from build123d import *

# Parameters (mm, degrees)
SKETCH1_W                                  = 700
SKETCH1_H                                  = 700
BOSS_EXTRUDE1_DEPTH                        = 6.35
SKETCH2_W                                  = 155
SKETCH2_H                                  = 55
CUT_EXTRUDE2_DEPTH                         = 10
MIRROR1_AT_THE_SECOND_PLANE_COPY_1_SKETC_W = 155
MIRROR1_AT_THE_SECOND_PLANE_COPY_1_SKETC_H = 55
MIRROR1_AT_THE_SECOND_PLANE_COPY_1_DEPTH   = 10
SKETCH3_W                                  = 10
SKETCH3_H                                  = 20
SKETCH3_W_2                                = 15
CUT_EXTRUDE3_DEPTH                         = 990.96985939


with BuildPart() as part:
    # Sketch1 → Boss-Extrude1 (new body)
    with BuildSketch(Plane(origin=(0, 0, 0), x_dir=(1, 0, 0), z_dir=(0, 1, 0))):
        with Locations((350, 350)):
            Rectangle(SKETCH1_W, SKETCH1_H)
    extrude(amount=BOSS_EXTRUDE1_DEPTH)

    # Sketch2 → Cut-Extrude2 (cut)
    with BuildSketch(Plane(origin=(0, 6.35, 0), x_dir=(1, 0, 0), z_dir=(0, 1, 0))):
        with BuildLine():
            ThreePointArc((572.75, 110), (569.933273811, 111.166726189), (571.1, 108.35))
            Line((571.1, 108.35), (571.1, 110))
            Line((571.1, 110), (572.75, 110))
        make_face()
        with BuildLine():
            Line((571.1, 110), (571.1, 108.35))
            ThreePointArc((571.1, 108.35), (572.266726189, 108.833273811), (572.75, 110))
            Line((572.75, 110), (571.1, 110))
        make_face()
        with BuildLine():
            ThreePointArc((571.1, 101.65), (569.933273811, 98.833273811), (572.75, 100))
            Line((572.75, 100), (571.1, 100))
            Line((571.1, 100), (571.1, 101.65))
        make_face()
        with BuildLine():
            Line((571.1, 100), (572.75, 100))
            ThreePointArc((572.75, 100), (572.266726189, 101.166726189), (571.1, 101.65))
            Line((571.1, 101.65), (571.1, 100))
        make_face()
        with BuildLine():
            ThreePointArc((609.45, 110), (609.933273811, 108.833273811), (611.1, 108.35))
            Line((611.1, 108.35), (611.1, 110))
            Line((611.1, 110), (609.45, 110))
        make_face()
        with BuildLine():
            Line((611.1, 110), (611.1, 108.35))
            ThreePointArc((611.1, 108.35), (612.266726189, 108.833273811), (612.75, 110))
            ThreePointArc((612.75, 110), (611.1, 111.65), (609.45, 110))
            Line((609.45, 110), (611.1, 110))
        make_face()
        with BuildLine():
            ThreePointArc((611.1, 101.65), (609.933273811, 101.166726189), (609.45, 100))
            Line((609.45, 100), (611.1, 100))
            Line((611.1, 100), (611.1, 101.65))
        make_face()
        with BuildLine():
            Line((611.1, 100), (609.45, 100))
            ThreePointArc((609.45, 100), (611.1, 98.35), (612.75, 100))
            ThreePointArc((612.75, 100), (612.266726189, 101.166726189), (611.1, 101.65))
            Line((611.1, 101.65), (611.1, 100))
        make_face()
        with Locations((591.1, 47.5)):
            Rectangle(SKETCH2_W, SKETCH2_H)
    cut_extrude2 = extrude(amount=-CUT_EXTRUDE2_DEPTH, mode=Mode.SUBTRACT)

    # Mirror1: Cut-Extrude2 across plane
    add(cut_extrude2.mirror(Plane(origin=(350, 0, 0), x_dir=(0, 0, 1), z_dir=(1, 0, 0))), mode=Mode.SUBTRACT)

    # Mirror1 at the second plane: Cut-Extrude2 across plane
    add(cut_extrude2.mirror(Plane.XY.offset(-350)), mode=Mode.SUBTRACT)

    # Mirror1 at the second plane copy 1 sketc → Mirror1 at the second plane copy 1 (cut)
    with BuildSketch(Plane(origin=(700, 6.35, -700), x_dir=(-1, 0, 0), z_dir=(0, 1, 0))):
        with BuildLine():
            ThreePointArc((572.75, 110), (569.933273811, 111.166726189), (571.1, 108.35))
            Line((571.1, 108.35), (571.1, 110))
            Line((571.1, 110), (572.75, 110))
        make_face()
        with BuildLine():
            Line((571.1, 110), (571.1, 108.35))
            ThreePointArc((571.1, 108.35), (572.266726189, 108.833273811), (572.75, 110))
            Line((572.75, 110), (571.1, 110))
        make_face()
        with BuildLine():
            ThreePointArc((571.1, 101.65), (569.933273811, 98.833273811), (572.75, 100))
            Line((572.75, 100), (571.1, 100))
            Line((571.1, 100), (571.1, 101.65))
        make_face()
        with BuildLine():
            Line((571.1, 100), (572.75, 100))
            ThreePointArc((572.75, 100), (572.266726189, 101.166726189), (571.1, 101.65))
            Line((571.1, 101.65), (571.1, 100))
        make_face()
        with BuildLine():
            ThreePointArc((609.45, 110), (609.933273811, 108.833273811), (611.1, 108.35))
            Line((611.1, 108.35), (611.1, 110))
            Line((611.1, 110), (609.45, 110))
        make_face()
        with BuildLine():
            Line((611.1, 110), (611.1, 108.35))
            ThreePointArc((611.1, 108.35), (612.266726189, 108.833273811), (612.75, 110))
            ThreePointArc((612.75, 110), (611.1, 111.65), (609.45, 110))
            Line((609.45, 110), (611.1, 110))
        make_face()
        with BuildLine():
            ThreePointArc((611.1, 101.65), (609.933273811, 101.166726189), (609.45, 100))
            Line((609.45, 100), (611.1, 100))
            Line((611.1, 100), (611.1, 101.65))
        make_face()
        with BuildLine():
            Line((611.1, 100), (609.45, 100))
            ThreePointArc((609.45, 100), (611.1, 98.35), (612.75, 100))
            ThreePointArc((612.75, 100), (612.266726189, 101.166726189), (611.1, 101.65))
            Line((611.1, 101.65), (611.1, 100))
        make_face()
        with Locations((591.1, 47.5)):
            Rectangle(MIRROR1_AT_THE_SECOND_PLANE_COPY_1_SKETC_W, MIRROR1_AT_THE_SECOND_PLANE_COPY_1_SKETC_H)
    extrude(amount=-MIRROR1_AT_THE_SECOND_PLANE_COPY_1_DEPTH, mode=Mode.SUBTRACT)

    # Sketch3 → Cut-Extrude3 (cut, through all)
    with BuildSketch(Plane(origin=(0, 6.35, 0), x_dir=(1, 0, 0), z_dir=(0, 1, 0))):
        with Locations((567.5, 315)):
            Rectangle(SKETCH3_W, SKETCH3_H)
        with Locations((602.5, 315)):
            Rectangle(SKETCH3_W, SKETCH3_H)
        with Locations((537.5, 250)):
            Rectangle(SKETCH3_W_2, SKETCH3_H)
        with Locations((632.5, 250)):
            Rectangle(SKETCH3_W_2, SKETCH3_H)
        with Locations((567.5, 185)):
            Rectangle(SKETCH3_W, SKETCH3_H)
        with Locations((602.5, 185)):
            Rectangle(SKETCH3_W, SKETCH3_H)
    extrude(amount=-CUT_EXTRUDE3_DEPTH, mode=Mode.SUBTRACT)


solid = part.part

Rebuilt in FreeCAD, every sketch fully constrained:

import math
import FreeCAD as App
import Part
import Sketcher
from FreeCAD import Vector


def add_polygon(sketch, points):
    """Adds a closed chain of lines whose ends are joined by coincident constraints."""
    first, n = sketch.GeometryCount, len(points)
    for a, b in zip(points, points[1:] + points[:1]):
        sketch.addGeometry(Part.LineSegment(App.Vector(*a, 0), App.Vector(*b, 0)), False)
    for i in range(n):
        sketch.addConstraint(Sketcher.Constraint("Coincident", first + i, 2, first + (i + 1) % n, 1))

doc = App.newDocument("Part")
body = doc.addObject("PartDesign::Body", "Body")

# Sketch on XZ plane
sketch1 = doc.addObject("Sketcher::SketchObject", "Sketch")
body.addObject(sketch1)
sketch1.AttachmentSupport = (doc.XZ_Plane, [""])
sketch1.MapMode = "FlatFace"
add_polygon(sketch1, [(0, -700), (0, 0), (700, 0), (700, -700)])  # lines 0-3
sketch1.addConstraint([
    Sketcher.Constraint("Vertical", 0),
    Sketcher.Constraint("Horizontal", 1),
    Sketcher.Constraint("Vertical", 2),
    Sketcher.Constraint("Horizontal", 3),
    Sketcher.Constraint("Coincident", 0, 2, -1, 1),
    Sketcher.Constraint("Equal", 3, 0),
    Sketcher.Constraint("DistanceX", 1, 1, 1, 2, 700.0),
])
pad1 = doc.addObject("PartDesign::Pad", "Pad")
body.addObject(pad1)
pad1.Profile = sketch1
pad1.Length = 6.35
pad1.Reversed = True

# Sketch on XZ plane
sketch2 = doc.addObject("Sketcher::SketchObject", "Sketch001")
body.addObject(sketch2)
sketch2.AttachmentSupport = (doc.XZ_Plane, [""])
sketch2.MapMode = "FlatFace"
sketch2.AttachmentOffset = App.Placement(Vector(0, 0, -6.35), App.Rotation())
sketch2.addGeometry(Part.ArcOfCircle(Part.Circle(Vector(571.1, -110, 0), Vector(0, 0, 1), 1.65), math.radians(90), math.radians(360)), False)  # 0
sketch2.addGeometry(Part.ArcOfCircle(Part.Circle(Vector(571.1, -110, 0), Vector(0, 0, 1), 1.65), math.radians(0), math.radians(90)), False)  # 1
sketch2.addGeometry(Part.ArcOfCircle(Part.Circle(Vector(571.1, -100, 0), Vector(0, 0, 1), 1.65), math.radians(0), math.radians(270)), False)  # 2
sketch2.addGeometry(Part.ArcOfCircle(Part.Circle(Vector(571.1, -100, 0), Vector(0, 0, 1), 1.65), math.radians(-90), math.radians(0)), False)  # 3
sketch2.addGeometry(Part.ArcOfCircle(Part.Circle(Vector(611.1, -110, 0), Vector(0, 0, 1), 1.65), math.radians(90), math.radians(180)), False)  # 4
sketch2.addGeometry(Part.ArcOfCircle(Part.Circle(Vector(611.1, -110, 0), Vector(0, 0, 1), 1.65), math.radians(0), math.radians(90)), False)  # 5
sketch2.addGeometry(Part.ArcOfCircle(Part.Circle(Vector(611.1, -110, 0), Vector(0, 0, 1), 1.65), math.radians(180), math.radians(360)), False)  # 6
sketch2.addGeometry(Part.ArcOfCircle(Part.Circle(Vector(611.1, -100, 0), Vector(0, 0, 1), 1.65), math.radians(180), math.radians(270)), False)  # 7
sketch2.addGeometry(Part.ArcOfCircle(Part.Circle(Vector(611.1, -100, 0), Vector(0, 0, 1), 1.65), math.radians(0), math.radians(180)), False)  # 8
sketch2.addGeometry(Part.ArcOfCircle(Part.Circle(Vector(611.1, -100, 0), Vector(0, 0, 1), 1.65), math.radians(-90), math.radians(0)), False)  # 9
add_polygon(sketch2, [(513.6, -75), (513.6, -20), (668.6, -20), (668.6, -75)])  # lines 10-13
sketch2.addConstraint([
    Sketcher.Constraint("Tangent", 0, 1, 1, 2),
    Sketcher.Constraint("Coincident", 1, 1, 0, 2),
    Sketcher.Constraint("Tangent", 2, 1, 3, 2),
    Sketcher.Constraint("Coincident", 3, 1, 2, 2),
    Sketcher.Constraint("Tangent", 4, 1, 5, 2),
    Sketcher.Constraint("Tangent", 5, 1, 6, 2),
    Sketcher.Constraint("Tangent", 6, 1, 4, 2),
    Sketcher.Constraint("Tangent", 7, 1, 8, 2),
    Sketcher.Constraint("Tangent", 8, 1, 9, 2),
    Sketcher.Constraint("Tangent", 9, 1, 7, 2),
    Sketcher.Constraint("Vertical", 10),
    Sketcher.Constraint("Horizontal", 11),
    Sketcher.Constraint("Vertical", 12),
    Sketcher.Constraint("Horizontal", 13),
    Sketcher.Constraint("Equal", 1, 2),
    Sketcher.Constraint("Equal", 3, 4),
    Sketcher.Constraint("Equal", 6, 7),
    Sketcher.Constraint("Horizontal", 1, 3, 4, 3),
    Sketcher.Constraint("Horizontal", 3, 3, 7, 3),
    Sketcher.Constraint("Horizontal", 6, 3, 1, 1),
    Sketcher.Constraint("Horizontal", 9, 3, 2, 1),
    Sketcher.Constraint("Horizontal", 1, 1, 5, 1),
    Sketcher.Constraint("Horizontal", 5, 1, 6, 1),
    Sketcher.Constraint("Horizontal", 2, 1, 7, 1),
    Sketcher.Constraint("Horizontal", 7, 1, 8, 1),
    Sketcher.Constraint("Vertical", 1, 3, 2, 3),
    Sketcher.Constraint("Vertical", 6, 3, 7, 3),
    Sketcher.Constraint("Vertical", 3, 3, 0, 1),
    Sketcher.Constraint("Vertical", 0, 1, 3, 1),
    Sketcher.Constraint("Vertical", 9, 3, 4, 1),
    Sketcher.Constraint("Vertical", 4, 1, 9, 1),
    Sketcher.Constraint("DistanceX", 11, 1, 11, 2, 155.0),
    Sketcher.Constraint("DistanceY", 10, 1, 10, 2, 55.0),
    Sketcher.Constraint("Radius", 0, 1.65),
    Sketcher.Constraint("DistanceY", 0, 3, -1, 1, 110.0),
    Sketcher.Constraint("DistanceY", 2, 3, -1, 1, 100.0),
    Sketcher.Constraint("DistanceY", 10, 2, -1, 1, 20.0),
    Sketcher.Constraint("DistanceX", 0, 3, 4, 3, 40.0),
    Sketcher.Constraint("DistanceX", -1, 1, 0, 3, 571.1),
    Sketcher.Constraint("DistanceX", -1, 1, 10, 2, 513.6),
])
pocket1 = doc.addObject("PartDesign::Pocket", "Pocket")
body.addObject(pocket1)
pocket1.Profile = sketch2
pocket1.Length = 10
pocket1.Reversed = True
doc.recompute()

datumplane = doc.addObject("PartDesign::Plane", "DatumPlane")
body.addObject(datumplane)
datumplane.AttachmentSupport = (doc.YZ_Plane, [""])
datumplane.MapMode = "FlatFace"
datumplane.AttachmentOffset = App.Placement(Vector(0, 0, 350), App.Rotation())
mirrored = doc.addObject("PartDesign::Mirrored", "Mirrored")
body.addObject(mirrored)
mirrored.Originals = [pocket1]
mirrored.MirrorPlane = (datumplane, [""])
body.Tip = mirrored
doc.recompute()

datumplane2 = doc.addObject("PartDesign::Plane", "DatumPlane001")
body.addObject(datumplane2)
datumplane2.AttachmentSupport = (doc.XY_Plane, [""])
datumplane2.MapMode = "FlatFace"
datumplane2.AttachmentOffset = App.Placement(Vector(0, 0, -350), App.Rotation())
mirrored2 = doc.addObject("PartDesign::Mirrored", "Mirrored001")
body.addObject(mirrored2)
mirrored2.Originals = [pocket1]
mirrored2.MirrorPlane = (datumplane2, [""])
body.Tip = mirrored2

# Sketch on XZ plane
sketch3 = doc.addObject("Sketcher::SketchObject", "Sketch002")
body.addObject(sketch3)
sketch3.AttachmentSupport = (doc.XZ_Plane, [""])
sketch3.MapMode = "FlatFace"
sketch3.AttachmentOffset = App.Placement(Vector(0, 0, -6.35), App.Rotation())
sketch3.addGeometry(Part.ArcOfCircle(Part.Circle(Vector(128.9, -590, 0), Vector(0, 0, 1), 1.65), math.radians(-90), math.radians(180)), False)  # 0
sketch3.addGeometry(Part.ArcOfCircle(Part.Circle(Vector(128.9, -590, 0), Vector(0, 0, 1), 1.65), math.radians(180), math.radians(270)), False)  # 1
sketch3.addGeometry(Part.ArcOfCircle(Part.Circle(Vector(128.9, -600, 0), Vector(0, 0, 1), 1.65), math.radians(180), math.radians(450)), False)  # 2
sketch3.addGeometry(Part.ArcOfCircle(Part.Circle(Vector(128.9, -600, 0), Vector(0, 0, 1), 1.65), math.radians(90), math.radians(180)), False)  # 3
sketch3.addGeometry(Part.ArcOfCircle(Part.Circle(Vector(88.9, -590, 0), Vector(0, 0, 1), 1.65), math.radians(-90), math.radians(0)), False)  # 4
sketch3.addGeometry(Part.ArcOfCircle(Part.Circle(Vector(88.9, -590, 0), Vector(0, 0, 1), 1.65), math.radians(180), math.radians(270)), False)  # 5
sketch3.addGeometry(Part.ArcOfCircle(Part.Circle(Vector(88.9, -590, 0), Vector(0, 0, 1), 1.65), math.radians(0), math.radians(180)), False)  # 6
sketch3.addGeometry(Part.ArcOfCircle(Part.Circle(Vector(88.9, -600, 0), Vector(0, 0, 1), 1.65), math.radians(0), math.radians(90)), False)  # 7
sketch3.addGeometry(Part.ArcOfCircle(Part.Circle(Vector(88.9, -600, 0), Vector(0, 0, 1), 1.65), math.radians(180), math.radians(360)), False)  # 8
sketch3.addGeometry(Part.ArcOfCircle(Part.Circle(Vector(88.9, -600, 0), Vector(0, 0, 1), 1.65), math.radians(90), math.radians(180)), False)  # 9
add_polygon(sketch3, [(186.4, -625), (186.4, -680), (31.4, -680), (31.4, -625)])  # lines 10-13
sketch3.addConstraint([
    Sketcher.Constraint("Tangent", 0, 1, 1, 2),
    Sketcher.Constraint("Coincident", 1, 1, 0, 2),
    Sketcher.Constraint("Tangent", 2, 1, 3, 2),
    Sketcher.Constraint("Coincident", 3, 1, 2, 2),
    Sketcher.Constraint("Tangent", 4, 1, 5, 2),
    Sketcher.Constraint("Tangent", 5, 1, 6, 2),
    Sketcher.Constraint("Tangent", 6, 1, 4, 2),
    Sketcher.Constraint("Tangent", 7, 1, 8, 2),
    Sketcher.Constraint("Tangent", 8, 1, 9, 2),
    Sketcher.Constraint("Tangent", 9, 1, 7, 2),
    Sketcher.Constraint("Vertical", 10),
    Sketcher.Constraint("Horizontal", 11),
    Sketcher.Constraint("Vertical", 12),
    Sketcher.Constraint("Horizontal", 13),
    Sketcher.Constraint("Equal", 1, 2),
    Sketcher.Constraint("Equal", 3, 4),
    Sketcher.Constraint("Equal", 6, 7),
    Sketcher.Constraint("Horizontal", 1, 3, 4, 3),
    Sketcher.Constraint("Horizontal", 3, 3, 7, 3),
    Sketcher.Constraint("Horizontal", 6, 3, 1, 1),
    Sketcher.Constraint("Horizontal", 9, 3, 2, 1),
    Sketcher.Constraint("Horizontal", 1, 1, 5, 1),
    Sketcher.Constraint("Horizontal", 5, 1, 6, 1),
    Sketcher.Constraint("Horizontal", 2, 1, 7, 1),
    Sketcher.Constraint("Horizontal", 7, 1, 8, 1),
    Sketcher.Constraint("Vertical", 1, 3, 2, 3),
    Sketcher.Constraint("Vertical", 6, 3, 7, 3),
    Sketcher.Constraint("Vertical", 3, 3, 0, 1),
    Sketcher.Constraint("Vertical", 0, 1, 3, 1),
    Sketcher.Constraint("Vertical", 9, 3, 4, 1),
    Sketcher.Constraint("Vertical", 4, 1, 9, 1),
    Sketcher.Constraint("DistanceX", 11, 2, 11, 1, 155.0),
    Sketcher.Constraint("DistanceY", 10, 2, 10, 1, 55.0),
    Sketcher.Constraint("Radius", 0, 1.65),
    Sketcher.Constraint("DistanceY", 0, 3, -1, 1, 590.0),
    Sketcher.Constraint("DistanceY", 2, 3, -1, 1, 600.0),
    Sketcher.Constraint("DistanceY", 10, 2, -1, 1, 680.0),
    Sketcher.Constraint("DistanceX", 4, 3, 0, 3, 40.0),
    Sketcher.Constraint("DistanceX", -1, 1, 0, 3, 128.9),
    Sketcher.Constraint("DistanceX", -1, 1, 10, 2, 186.4),
])
pocket2 = doc.addObject("PartDesign::Pocket", "Pocket001")
body.addObject(pocket2)
pocket2.Profile = sketch3
pocket2.Length = 10
pocket2.Reversed = True

# Sketch on XZ plane
sketch4 = doc.addObject("Sketcher::SketchObject", "Sketch003")
body.addObject(sketch4)
sketch4.AttachmentSupport = (doc.XZ_Plane, [""])
sketch4.MapMode = "FlatFace"
sketch4.AttachmentOffset = App.Placement(Vector(0, 0, -6.35), App.Rotation())
add_polygon(sketch4, [(562.5, -325), (562.5, -305), (572.5, -305), (572.5, -325)])  # lines 0-3
add_polygon(sketch4, [(597.5, -325), (597.5, -305), (607.5, -305), (607.5, -325)])  # lines 4-7
add_polygon(sketch4, [(530, -260), (530, -240), (545, -240), (545, -260)])  # lines 8-11
add_polygon(sketch4, [(625, -260), (625, -240), (640, -240), (640, -260)])  # lines 12-15
add_polygon(sketch4, [(562.5, -195), (562.5, -175), (572.5, -175), (572.5, -195)])  # lines 16-19
add_polygon(sketch4, [(597.5, -195), (597.5, -175), (607.5, -175), (607.5, -195)])  # lines 20-23
sketch4.addConstraint([
    Sketcher.Constraint("Vertical", 0),
    Sketcher.Constraint("Horizontal", 1),
    Sketcher.Constraint("Vertical", 2),
    Sketcher.Constraint("Horizontal", 3),
    Sketcher.Constraint("Vertical", 4),
    Sketcher.Constraint("Horizontal", 5),
    Sketcher.Constraint("Vertical", 6),
    Sketcher.Constraint("Horizontal", 7),
    Sketcher.Constraint("Vertical", 8),
    Sketcher.Constraint("Horizontal", 9),
    Sketcher.Constraint("Vertical", 10),
    Sketcher.Constraint("Horizontal", 11),
    Sketcher.Constraint("Vertical", 12),
    Sketcher.Constraint("Horizontal", 13),
    Sketcher.Constraint("Vertical", 14),
    Sketcher.Constraint("Horizontal", 15),
    Sketcher.Constraint("Vertical", 16),
    Sketcher.Constraint("Horizontal", 17),
    Sketcher.Constraint("Vertical", 18),
    Sketcher.Constraint("Horizontal", 19),
    Sketcher.Constraint("Vertical", 20),
    Sketcher.Constraint("Horizontal", 21),
    Sketcher.Constraint("Vertical", 22),
    Sketcher.Constraint("Horizontal", 23),
    Sketcher.Constraint("Horizontal", 1, 2, 4, 2),
    Sketcher.Constraint("Horizontal", 3, 2, 6, 2),
    Sketcher.Constraint("Horizontal", 9, 2, 12, 2),
    Sketcher.Constraint("Horizontal", 11, 2, 14, 2),
    Sketcher.Constraint("Horizontal", 17, 2, 20, 2),
    Sketcher.Constraint("Horizontal", 19, 2, 22, 2),
    Sketcher.Constraint("Vertical", 3, 2, 16, 2),
    Sketcher.Constraint("Vertical", 2, 2, 17, 2),
    Sketcher.Constraint("Vertical", 7, 2, 20, 2),
    Sketcher.Constraint("Vertical", 6, 2, 21, 2),
    Sketcher.Constraint("Equal", 3, 5),
    Sketcher.Constraint("Equal", 11, 13),
    Sketcher.Constraint("Equal", 6, 8),
    Sketcher.Constraint("Equal", 14, 16),
    Sketcher.Constraint("DistanceX", 1, 1, 1, 2, 10.0),
    Sketcher.Constraint("DistanceX", 9, 1, 9, 2, 15.0),
    Sketcher.Constraint("DistanceY", 0, 1, 0, 2, 20.0),
    Sketcher.Constraint("DistanceY", 0, 2, -1, 1, 305.0),
    Sketcher.Constraint("DistanceX", -1, 1, 8, 2, 530.0),
    Sketcher.Constraint("DistanceY", 8, 2, -1, 1, 240.0),
    Sketcher.Constraint("DistanceX", -1, 1, 12, 2, 625.0),
    Sketcher.Constraint("DistanceY", 16, 2, -1, 1, 175.0),
    Sketcher.Constraint("DistanceX", 1, 2, 4, 2, 25.0),
    Sketcher.Constraint("DistanceX", -1, 1, 0, 2, 562.5),
])
pocket3 = doc.addObject("PartDesign::Pocket", "Pocket002")
body.addObject(pocket3)
pocket3.Profile = sketch4
pocket3.Type = "ThroughAll"
pocket3.Reversed = True

doc.recompute()
